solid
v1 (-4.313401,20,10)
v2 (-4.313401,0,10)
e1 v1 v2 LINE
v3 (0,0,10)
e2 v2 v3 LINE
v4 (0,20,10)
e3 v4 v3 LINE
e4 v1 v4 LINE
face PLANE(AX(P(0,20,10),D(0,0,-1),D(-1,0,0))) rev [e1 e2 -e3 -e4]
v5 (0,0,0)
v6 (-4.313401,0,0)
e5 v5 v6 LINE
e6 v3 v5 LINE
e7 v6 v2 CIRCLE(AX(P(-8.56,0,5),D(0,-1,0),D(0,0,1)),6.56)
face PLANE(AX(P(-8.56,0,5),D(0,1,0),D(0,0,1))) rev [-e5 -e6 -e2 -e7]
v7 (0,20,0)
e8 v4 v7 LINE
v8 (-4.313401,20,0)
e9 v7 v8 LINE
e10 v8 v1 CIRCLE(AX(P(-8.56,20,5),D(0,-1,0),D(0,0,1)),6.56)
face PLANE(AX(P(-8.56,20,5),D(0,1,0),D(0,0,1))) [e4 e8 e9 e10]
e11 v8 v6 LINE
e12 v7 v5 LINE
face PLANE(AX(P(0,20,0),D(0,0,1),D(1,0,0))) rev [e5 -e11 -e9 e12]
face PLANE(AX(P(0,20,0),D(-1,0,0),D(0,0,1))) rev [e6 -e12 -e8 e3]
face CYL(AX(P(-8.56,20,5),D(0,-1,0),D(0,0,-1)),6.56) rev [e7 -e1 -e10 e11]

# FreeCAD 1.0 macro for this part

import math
import FreeCAD as App
import Part
import Sketcher
Q = App.Units.Quantity

doc = App.newDocument("Part")
body = doc.addObject("PartDesign::Body", "Body")

sketch1 = doc.addObject("Sketcher::SketchObject", "Sketch")
body.addObject(sketch1)
sketch1.AttachmentSupport = (doc.XZ_Plane, [""])
sketch1.MapMode = "FlatFace"
sketch1.addGeometry([
    Part.LineSegment(App.Vector(0, 10, 0), App.Vector(0, 0, 0)),
    Part.LineSegment(App.Vector(0, 0, 0), App.Vector(-4.313401, 0, 0)),
    Part.ArcOfCircle(Part.Circle(App.Vector(-8.56, 5, 0), App.Vector(0, 0, 1), 6.56), math.radians(-49.658099), math.radians(49.658099)),
    Part.LineSegment(App.Vector(-4.313401, 10, 0), App.Vector(0, 10, 0)),
], False)
sketch1.addConstraint([
    Sketcher.Constraint("Coincident", 0, 2, 1, 1),
    Sketcher.Constraint("Coincident", 1, 2, 2, 1),
    Sketcher.Constraint("Coincident", 2, 2, 3, 1),
    Sketcher.Constraint("Coincident", 3, 2, 0, 1),
    Sketcher.Constraint("Vertical", 0),
    Sketcher.Constraint("Horizontal", 1),
    Sketcher.Constraint("Horizontal", 3),
    Sketcher.Constraint("Coincident", 0, 2, -1, 1),
    Sketcher.Constraint("Vertical", 1, 2, 2, 2),
    Sketcher.Constraint("DistanceY", 0, 2, 0, 1, Q("10 mm")),
    Sketcher.Constraint("Radius", 2, Q("6.56 mm")),
    Sketcher.Constraint("DistanceX", 2, 3, -1, 1, Q("8.56 mm")),
])
pad1 = doc.addObject("PartDesign::Pad", "Pad")
body.addObject(pad1)
pad1.Profile = sketch1
pad1.Length = 20
pad1.Reversed = True

doc.recompute()
